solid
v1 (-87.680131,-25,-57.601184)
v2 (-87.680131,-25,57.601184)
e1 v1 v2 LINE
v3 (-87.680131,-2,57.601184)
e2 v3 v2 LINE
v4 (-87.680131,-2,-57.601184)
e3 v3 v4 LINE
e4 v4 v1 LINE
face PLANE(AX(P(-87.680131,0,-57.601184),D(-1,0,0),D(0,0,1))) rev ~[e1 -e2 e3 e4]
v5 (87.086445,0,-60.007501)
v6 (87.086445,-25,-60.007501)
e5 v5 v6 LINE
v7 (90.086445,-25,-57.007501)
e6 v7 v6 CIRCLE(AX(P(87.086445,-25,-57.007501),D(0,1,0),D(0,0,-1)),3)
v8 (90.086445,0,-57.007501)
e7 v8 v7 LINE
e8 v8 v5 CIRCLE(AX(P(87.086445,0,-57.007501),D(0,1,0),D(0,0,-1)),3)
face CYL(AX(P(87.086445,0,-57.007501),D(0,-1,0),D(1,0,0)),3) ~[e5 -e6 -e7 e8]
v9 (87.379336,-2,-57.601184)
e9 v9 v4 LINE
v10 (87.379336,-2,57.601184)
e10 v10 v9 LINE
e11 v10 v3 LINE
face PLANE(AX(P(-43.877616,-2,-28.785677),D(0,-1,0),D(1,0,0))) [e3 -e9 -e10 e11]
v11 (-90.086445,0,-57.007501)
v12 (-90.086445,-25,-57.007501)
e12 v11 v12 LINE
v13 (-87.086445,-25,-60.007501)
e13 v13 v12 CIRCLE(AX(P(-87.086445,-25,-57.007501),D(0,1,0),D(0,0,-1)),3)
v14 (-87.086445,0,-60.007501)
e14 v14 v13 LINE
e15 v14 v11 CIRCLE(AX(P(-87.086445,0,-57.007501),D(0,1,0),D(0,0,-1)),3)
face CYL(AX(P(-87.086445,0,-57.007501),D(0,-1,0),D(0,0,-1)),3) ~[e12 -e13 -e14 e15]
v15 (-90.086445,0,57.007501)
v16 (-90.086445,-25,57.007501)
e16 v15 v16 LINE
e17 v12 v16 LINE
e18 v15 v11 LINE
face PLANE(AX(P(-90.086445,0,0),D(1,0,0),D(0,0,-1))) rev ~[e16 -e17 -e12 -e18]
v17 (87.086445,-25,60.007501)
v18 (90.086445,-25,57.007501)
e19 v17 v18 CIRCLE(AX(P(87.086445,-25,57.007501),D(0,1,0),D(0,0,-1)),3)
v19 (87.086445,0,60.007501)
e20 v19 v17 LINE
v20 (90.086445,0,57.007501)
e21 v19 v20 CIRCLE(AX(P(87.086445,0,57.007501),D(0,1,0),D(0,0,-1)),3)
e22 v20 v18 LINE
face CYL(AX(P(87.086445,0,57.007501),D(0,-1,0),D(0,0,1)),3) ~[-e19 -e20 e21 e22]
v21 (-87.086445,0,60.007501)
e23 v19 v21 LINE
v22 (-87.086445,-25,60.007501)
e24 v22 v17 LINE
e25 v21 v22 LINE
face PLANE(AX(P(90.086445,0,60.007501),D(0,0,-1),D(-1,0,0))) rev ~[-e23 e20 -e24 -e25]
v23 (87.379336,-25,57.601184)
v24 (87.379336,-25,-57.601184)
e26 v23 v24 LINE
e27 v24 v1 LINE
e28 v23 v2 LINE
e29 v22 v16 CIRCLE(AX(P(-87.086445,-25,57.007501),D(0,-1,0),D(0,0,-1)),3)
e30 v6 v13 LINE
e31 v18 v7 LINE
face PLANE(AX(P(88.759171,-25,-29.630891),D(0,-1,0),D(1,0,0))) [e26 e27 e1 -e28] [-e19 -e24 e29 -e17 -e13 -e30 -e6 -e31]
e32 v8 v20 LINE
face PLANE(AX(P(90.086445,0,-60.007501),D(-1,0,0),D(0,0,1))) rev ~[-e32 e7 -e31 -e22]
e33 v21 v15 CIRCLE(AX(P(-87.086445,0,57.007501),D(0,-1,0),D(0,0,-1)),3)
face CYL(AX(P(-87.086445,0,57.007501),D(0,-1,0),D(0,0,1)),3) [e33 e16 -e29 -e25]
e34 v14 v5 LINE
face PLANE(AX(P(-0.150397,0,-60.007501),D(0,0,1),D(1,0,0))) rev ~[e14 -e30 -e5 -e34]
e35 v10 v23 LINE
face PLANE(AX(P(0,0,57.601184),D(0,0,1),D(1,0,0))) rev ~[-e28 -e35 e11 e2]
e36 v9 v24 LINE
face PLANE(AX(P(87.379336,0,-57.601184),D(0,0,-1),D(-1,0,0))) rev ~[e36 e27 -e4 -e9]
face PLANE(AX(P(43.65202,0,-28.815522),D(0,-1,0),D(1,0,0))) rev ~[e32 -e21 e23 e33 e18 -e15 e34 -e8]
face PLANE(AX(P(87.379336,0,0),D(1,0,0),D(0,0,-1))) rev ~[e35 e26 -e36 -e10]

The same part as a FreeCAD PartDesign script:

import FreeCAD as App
import Part
import Sketcher
Q = App.Units.Quantity


def edges_at(feature, points):
    """Names of the edges that pass closest to the given points."""
    edges = feature.Shape.Edges
    near = lambda p: min(range(len(edges)), key=lambda i: edges[i].distToShape(Part.Vertex(*p))[0])
    return sorted({f"Edge{near(p) + 1}" for p in points})


def add_polygon(sketch, points):
    """Adds a closed chain of lines whose ends are joined by coincident constraints."""
    first, n = sketch.GeometryCount, len(points)
    for a, b in zip(points, points[1:] + points[:1]):
        sketch.addGeometry(Part.LineSegment(App.Vector(*a, 0), App.Vector(*b, 0)), False)
    for i in range(n):
        sketch.addConstraint(Sketcher.Constraint("Coincident", first + i, 2, first + (i + 1) % n, 1))

doc = App.newDocument("Part")
params = doc.addObject("Spreadsheet::Sheet", "Params")
for row, (alias, value) in enumerate([
    ("pad1_length", "25 mm"),
    ("pad2_length", "25 mm"),
    ("pad3_length", "25 mm"),
    ("pad4_length", "25 mm"),
    ("pad5_length", "25 mm"),
    ("pad6_length", "25 mm"),
    ("pad7_length", "25 mm"),
    ("pad8_length", "25 mm"),
    ("pad9_length", "2 mm"),
    ("pad10_length", "2 mm"),
    ("pad11_length", "2 mm"),
    ("pad12_length", "2 mm"),
    ("fillet_radius", "3 mm"),
    ("fillet2_radius", "3 mm"),
    ("fillet3_radius", "3 mm"),
    ("fillet4_radius", "3 mm"),
], start=1):
    params.set(f"A{row}", alias)
    params.set(f"B{row}", "=" + value)
    params.setAlias(f"B{row}", alias)

body = doc.addObject("PartDesign::Body", "Body")

sketch1 = body.newObject("Sketcher::SketchObject", "Sketch")
sketch1.AttachmentSupport = (doc.getObject("XZ_Plane"), [""])
sketch1.MapMode = "FlatFace"
add_polygon(sketch1, [(0, 57.6), (0, 60), (-90.1, 60), (-87.7, 57.6)])
sketch1.addConstraint(Sketcher.Constraint("Vertical", 0))
sketch1.addConstraint(Sketcher.Constraint("Horizontal", 1))
sketch1.addConstraint(Sketcher.Constraint("Horizontal", 3))
sketch1.addConstraint(Sketcher.Constraint("PointOnObject", 0, 2, -2))
sketch1.addConstraint(Sketcher.Constraint("DistanceX", 3, 1, 3, 2, Q("87.680131 mm")))
sketch1.addConstraint(Sketcher.Constraint("DistanceY", -1, 1, 0, 2, Q("60.007501 mm")))
sketch1.addConstraint(Sketcher.Constraint("DistanceX", 1, 2, 1, 1, Q("90.086445 mm")))
sketch1.addConstraint(Sketcher.Constraint("DistanceY", 0, 1, 0, 2, Q("2.406318 mm")))
pad1 = body.newObject("PartDesign::Pad", "Pad")
pad1.Profile = sketch1
pad1.setExpression("Length", "Params.pad1_length")

sketch2 = body.newObject("Sketcher::SketchObject", "Sketch001")
sketch2.AttachmentSupport = (doc.getObject("XZ_Plane"), [""])
sketch2.MapMode = "FlatFace"
add_polygon(sketch2, [(87.4, 57.6), (90.1, 60), (0, 60), (0, 57.6)])
sketch2.addConstraint(Sketcher.Constraint("Horizontal", 1))
sketch2.addConstraint(Sketcher.Constraint("Vertical", 2))
sketch2.addConstraint(Sketcher.Constraint("Horizontal", 3))
sketch2.addConstraint(Sketcher.Constraint("PointOnObject", 1, 2, -2))
sketch2.addConstraint(Sketcher.Constraint("DistanceY", -1, 1, 0, 2, Q("60.007501 mm")))
sketch2.addConstraint(Sketcher.Constraint("Distance", 0, Q("3.621989 mm")))
sketch2.addConstraint(Sketcher.Constraint("DistanceX", 1, 2, 1, 1, Q("90.086445 mm")))
sketch2.addConstraint(Sketcher.Constraint("DistanceX", 3, 1, 3, 2, Q("87.379336 mm")))
pad2 = body.newObject("PartDesign::Pad", "Pad001")
pad2.Profile = sketch2
pad2.setExpression("Length", "Params.pad2_length")

sketch3 = body.newObject("Sketcher::SketchObject", "Sketch002")
sketch3.AttachmentSupport = (doc.getObject("XZ_Plane"), [""])
sketch3.MapMode = "FlatFace"
add_polygon(sketch3, [(-87.7, 57.6), (-90.1, 60), (-90.1, 0), (-87.7, 0)])
sketch3.addConstraint(Sketcher.Constraint("Vertical", 1))
sketch3.addConstraint(Sketcher.Constraint("Horizontal", 2))
sketch3.addConstraint(Sketcher.Constraint("Vertical", 3))
sketch3.addConstraint(Sketcher.Constraint("PointOnObject", 1, 2, -1))
sketch3.addConstraint(Sketcher.Constraint("DistanceY", 1, 2, 1, 1, Q("60.007501 mm")))
sketch3.addConstraint(Sketcher.Constraint("DistanceX", 2, 1, 2, 2, Q("2.406314 mm")))
sketch3.addConstraint(Sketcher.Constraint("DistanceY", 3, 1, 3, 2, Q("57.601184 mm")))
sketch3.addConstraint(Sketcher.Constraint("DistanceX", 2, 2, -1, 1, Q("87.680131 mm")))
pad3 = body.newObject("PartDesign::Pad", "Pad002")
pad3.Profile = sketch3
pad3.setExpression("Length", "Params.pad3_length")

sketch4 = body.newObject("Sketcher::SketchObject", "Sketch003")
sketch4.AttachmentSupport = (doc.getObject("XZ_Plane"), [""])
sketch4.MapMode = "FlatFace"
add_polygon(sketch4, [(-87.7, 0), (-90.1, 0), (-90.1, -60), (-87.7, -57.6)])
sketch4.addConstraint(Sketcher.Constraint("Horizontal", 0))
sketch4.addConstraint(Sketcher.Constraint("Vertical", 1))
sketch4.addConstraint(Sketcher.Constraint("Vertical", 3))
sketch4.addConstraint(Sketcher.Constraint("PointOnObject", 0, 2, -1))
sketch4.addConstraint(Sketcher.Constraint("DistanceY", 1, 2, 1, 1, Q("60.007501 mm")))
sketch4.addConstraint(Sketcher.Constraint("DistanceX", 0, 2, 0, 1, Q("2.406314 mm")))
sketch4.addConstraint(Sketcher.Constraint("DistanceY", 3, 1, 3, 2, Q("57.601184 mm")))
sketch4.addConstraint(Sketcher.Constraint("DistanceX", 2, 2, -1, 1, Q("87.680131 mm")))
pad4 = body.newObject("PartDesign::Pad", "Pad003")
pad4.Profile = sketch4
pad4.setExpression("Length", "Params.pad4_length")

sketch5 = body.newObject("Sketcher::SketchObject", "Sketch004")
sketch5.AttachmentSupport = (doc.getObject("XZ_Plane"), [""])
sketch5.MapMode = "FlatFace"
add_polygon(sketch5, [(-90.1, -60), (-0.2, -60), (-0.2, -57.6), (-87.7, -57.6)])
sketch5.addConstraint(Sketcher.Constraint("Horizontal", 0))
sketch5.addConstraint(Sketcher.Constraint("Vertical", 1))
sketch5.addConstraint(Sketcher.Constraint("Horizontal", 2))
sketch5.addConstraint(Sketcher.Constraint("DistanceY", 0, 2, -1, 1, Q("60.007501 mm")))
sketch5.addConstraint(Sketcher.Constraint("DistanceX", 0, 1, 0, 2, Q("89.936048 mm")))
sketch5.addConstraint(Sketcher.Constraint("DistanceX", 2, 2, 2, 1, Q("87.529734 mm")))
sketch5.addConstraint(Sketcher.Constraint("DistanceY", 1, 1, 1, 2, Q("2.406318 mm")))
sketch5.addConstraint(Sketcher.Constraint("DistanceX", 2, 2, -1, 1, Q("87.680131 mm")))
pad5 = body.newObject("PartDesign::Pad", "Pad004")
pad5.Profile = sketch5
pad5.setExpression("Length", "Params.pad5_length")

sketch6 = body.newObject("Sketcher::SketchObject", "Sketch005")
sketch6.AttachmentSupport = (doc.getObject("XZ_Plane"), [""])
sketch6.MapMode = "FlatFace"
add_polygon(sketch6, [(-0.2, -60), (90.1, -60), (87.4, -57.6), (-0.2, -57.6)])
sketch6.addConstraint(Sketcher.Constraint("Horizontal", 0))
sketch6.addConstraint(Sketcher.Constraint("Horizontal", 2))
sketch6.addConstraint(Sketcher.Constraint("Vertical", 3))
sketch6.addConstraint(Sketcher.Constraint("DistanceY", 0, 2, -1, 1, Q("60.007501 mm")))
sketch6.addConstraint(Sketcher.Constraint("Distance", 1, Q("3.621989 mm")))
sketch6.addConstraint(Sketcher.Constraint("DistanceX", 0, 1, 0, 2, Q("90.236843 mm")))
sketch6.addConstraint(Sketcher.Constraint("DistanceX", 2, 2, 2, 1, Q("87.529734 mm")))
sketch6.addConstraint(Sketcher.Constraint("DistanceX", -1, 1, 0, 2, Q("90.086445 mm")))
pad6 = body.newObject("PartDesign::Pad", "Pad005")
pad6.Profile = sketch6
pad6.setExpression("Length", "Params.pad6_length")

sketch7 = body.newObject("Sketcher::SketchObject", "Sketch006")
sketch7.AttachmentSupport = (doc.getObject("XZ_Plane"), [""])
sketch7.MapMode = "FlatFace"
add_polygon(sketch7, [(90.1, 0), (90.1, 60), (87.4, 57.6), (87.4, 0)])
sketch7.addConstraint(Sketcher.Constraint("Vertical", 0))
sketch7.addConstraint(Sketcher.Constraint("Vertical", 2))
sketch7.addConstraint(Sketcher.Constraint("Horizontal", 3))
sketch7.addConstraint(Sketcher.Constraint("PointOnObject", 2, 2, -1))
sketch7.addConstraint(Sketcher.Constraint("DistanceY", 0, 1, 0, 2, Q("60.007501 mm")))
sketch7.addConstraint(Sketcher.Constraint("DistanceX", 3, 1, 3, 2, Q("2.707109 mm")))
sketch7.addConstraint(Sketcher.Constraint("Distance", 1, Q("3.621989 mm")))
sketch7.addConstraint(Sketcher.Constraint("DistanceX", -1, 1, 0, 2, Q("90.086445 mm")))
pad7 = body.newObject("PartDesign::Pad", "Pad006")
pad7.Profile = sketch7
pad7.setExpression("Length", "Params.pad7_length")

sketch8 = body.newObject("Sketcher::SketchObject", "Sketch007")
sketch8.AttachmentSupport = (doc.getObject("XZ_Plane"), [""])
sketch8.MapMode = "FlatFace"
add_polygon(sketch8, [(90.1, -60), (90.1, 0), (87.4, 0), (87.4, -57.6)])
sketch8.addConstraint(Sketcher.Constraint("Vertical", 0))
sketch8.addConstraint(Sketcher.Constraint("Horizontal", 1))
sketch8.addConstraint(Sketcher.Constraint("Vertical", 2))
sketch8.addConstraint(Sketcher.Constraint("PointOnObject", 0, 2, -1))
sketch8.addConstraint(Sketcher.Constraint("DistanceY", 0, 1, 0, 2, Q("60.007501 mm")))
sketch8.addConstraint(Sketcher.Constraint("DistanceX", 1, 2, 1, 1, Q("2.707109 mm")))
sketch8.addConstraint(Sketcher.Constraint("Distance", 3, Q("3.621989 mm")))
sketch8.addConstraint(Sketcher.Constraint("DistanceX", -1, 1, 0, 2, Q("90.086445 mm")))
pad8 = body.newObject("PartDesign::Pad", "Pad007")
pad8.Profile = sketch8
pad8.setExpression("Length", "Params.pad8_length")

sketch9 = body.newObject("Sketcher::SketchObject", "Sketch008")
sketch9.AttachmentSupport = (doc.getObject("XZ_Plane"), [""])
sketch9.MapMode = "FlatFace"
add_polygon(sketch9, [(-88, 58), (-88, 0), (87, 0), (87, 58)])
sketch9.addConstraint(Sketcher.Constraint("Vertical", 0))
sketch9.addConstraint(Sketcher.Constraint("Horizontal", 1))
sketch9.addConstraint(Sketcher.Constraint("Vertical", 2))
sketch9.addConstraint(Sketcher.Constraint("Horizontal", 3))
sketch9.addConstraint(Sketcher.Constraint("PointOnObject", 0, 2, -1))
sketch9.addConstraint(Sketcher.Constraint("DistanceX", 1, 1, 1, 2, Q("175.059468 mm")))
sketch9.addConstraint(Sketcher.Constraint("DistanceY", 0, 2, 0, 1, Q("57.601184 mm")))
sketch9.addConstraint(Sketcher.Constraint("DistanceX", 0, 2, -1, 1, Q("87.680131 mm")))
pad9 = body.newObject("PartDesign::Pad", "Pad008")
pad9.Profile = sketch9
pad9.setExpression("Length", "Params.pad9_length")

sketch10 = body.newObject("Sketcher::SketchObject", "Sketch009")
sketch10.AttachmentSupport = (doc.getObject("XZ_Plane"), [""])
sketch10.MapMode = "FlatFace"
add_polygon(sketch10, [(0, 58), (0, 0), (87, 0), (87, 58)])
sketch10.addConstraint(Sketcher.Constraint("Vertical", 0))
sketch10.addConstraint(Sketcher.Constraint("Horizontal", 1))
sketch10.addConstraint(Sketcher.Constraint("Vertical", 2))
sketch10.addConstraint(Sketcher.Constraint("Horizontal", 3))
sketch10.addConstraint(Sketcher.Constraint("Coincident", 0, 2, -1, 1))
sketch10.addConstraint(Sketcher.Constraint("DistanceX", 1, 1, 1, 2, Q("87.379336 mm")))
sketch10.addConstraint(Sketcher.Constraint("DistanceY", 0, 2, 0, 1, Q("57.601184 mm")))
pad10 = body.newObject("PartDesign::Pad", "Pad009")
pad10.Profile = sketch10
pad10.setExpression("Length", "Params.pad10_length")

sketch11 = body.newObject("Sketcher::SketchObject", "Sketch010")
sketch11.AttachmentSupport = (doc.getObject("XZ_Plane"), [""])
sketch11.MapMode = "FlatFace"
add_polygon(sketch11, [(0, -58), (0, 0), (-88, 0), (-88, -58)])
sketch11.addConstraint(Sketcher.Constraint("Horizontal", 1))
sketch11.addConstraint(Sketcher.Constraint("Vertical", 2))
sketch11.addConstraint(Sketcher.Constraint("Horizontal", 3))
sketch11.addConstraint(Sketcher.Constraint("Coincident", 0, 2, -1, 1))
sketch11.addConstraint(Sketcher.Constraint("DistanceX", 1, 2, 1, 1, Q("87.680131 mm")))
sketch11.addConstraint(Sketcher.Constraint("Distance", 0, Q("57.60138 mm")))
sketch11.addConstraint(Sketcher.Constraint("DistanceX", 3, 1, 3, 2, Q("87.529734 mm")))
pad11 = body.newObject("PartDesign::Pad", "Pad010")
pad11.Profile = sketch11
pad11.setExpression("Length", "Params.pad11_length")

sketch12 = body.newObject("Sketcher::SketchObject", "Sketch011")
sketch12.AttachmentSupport = (doc.getObject("XZ_Plane"), [""])
sketch12.MapMode = "FlatFace"
add_polygon(sketch12, [(87, -58), (87, 0), (0, 0), (0, -58)])
sketch12.addConstraint(Sketcher.Constraint("Vertical", 0))
sketch12.addConstraint(Sketcher.Constraint("Horizontal", 1))
sketch12.addConstraint(Sketcher.Constraint("Horizontal", 3))
sketch12.addConstraint(Sketcher.Constraint("Coincident", 1, 2, -1, 1))
sketch12.addConstraint(Sketcher.Constraint("Distance", 2, Q("57.60138 mm")))
sketch12.addConstraint(Sketcher.Constraint("DistanceX", 1, 2, 1, 1, Q("87.379336 mm")))
sketch12.addConstraint(Sketcher.Constraint("DistanceX", 3, 1, 3, 2, Q("87.529734 mm")))
pad12 = body.newObject("PartDesign::Pad", "Pad011")
pad12.Profile = sketch12
pad12.setExpression("Length", "Params.pad12_length")
doc.recompute()

fillet = body.newObject("PartDesign::Fillet", "Fillet")
fillet.Base = (pad12, edges_at(pad12, [(-90.086, -12.5, 60.008)]))
fillet.setExpression("Radius", "Params.fillet_radius")
doc.recompute()

fillet2 = body.newObject("PartDesign::Fillet", "Fillet001")
fillet2.Base = (fillet, edges_at(fillet, [(90.086, -12.5, 60.008)]))
fillet2.setExpression("Radius", "Params.fillet2_radius")
doc.recompute()

fillet3 = body.newObject("PartDesign::Fillet", "Fillet002")
fillet3.Base = (fillet2, edges_at(fillet2, [(90.086, -12.5, -60.008)]))
fillet3.setExpression("Radius", "Params.fillet3_radius")
doc.recompute()

fillet4 = body.newObject("PartDesign::Fillet", "Fillet003")
fillet4.Base = (fillet3, edges_at(fillet3, [(-90.086, -12.5, -60.008)]))
fillet4.setExpression("Radius", "Params.fillet4_radius")

doc.recompute()
